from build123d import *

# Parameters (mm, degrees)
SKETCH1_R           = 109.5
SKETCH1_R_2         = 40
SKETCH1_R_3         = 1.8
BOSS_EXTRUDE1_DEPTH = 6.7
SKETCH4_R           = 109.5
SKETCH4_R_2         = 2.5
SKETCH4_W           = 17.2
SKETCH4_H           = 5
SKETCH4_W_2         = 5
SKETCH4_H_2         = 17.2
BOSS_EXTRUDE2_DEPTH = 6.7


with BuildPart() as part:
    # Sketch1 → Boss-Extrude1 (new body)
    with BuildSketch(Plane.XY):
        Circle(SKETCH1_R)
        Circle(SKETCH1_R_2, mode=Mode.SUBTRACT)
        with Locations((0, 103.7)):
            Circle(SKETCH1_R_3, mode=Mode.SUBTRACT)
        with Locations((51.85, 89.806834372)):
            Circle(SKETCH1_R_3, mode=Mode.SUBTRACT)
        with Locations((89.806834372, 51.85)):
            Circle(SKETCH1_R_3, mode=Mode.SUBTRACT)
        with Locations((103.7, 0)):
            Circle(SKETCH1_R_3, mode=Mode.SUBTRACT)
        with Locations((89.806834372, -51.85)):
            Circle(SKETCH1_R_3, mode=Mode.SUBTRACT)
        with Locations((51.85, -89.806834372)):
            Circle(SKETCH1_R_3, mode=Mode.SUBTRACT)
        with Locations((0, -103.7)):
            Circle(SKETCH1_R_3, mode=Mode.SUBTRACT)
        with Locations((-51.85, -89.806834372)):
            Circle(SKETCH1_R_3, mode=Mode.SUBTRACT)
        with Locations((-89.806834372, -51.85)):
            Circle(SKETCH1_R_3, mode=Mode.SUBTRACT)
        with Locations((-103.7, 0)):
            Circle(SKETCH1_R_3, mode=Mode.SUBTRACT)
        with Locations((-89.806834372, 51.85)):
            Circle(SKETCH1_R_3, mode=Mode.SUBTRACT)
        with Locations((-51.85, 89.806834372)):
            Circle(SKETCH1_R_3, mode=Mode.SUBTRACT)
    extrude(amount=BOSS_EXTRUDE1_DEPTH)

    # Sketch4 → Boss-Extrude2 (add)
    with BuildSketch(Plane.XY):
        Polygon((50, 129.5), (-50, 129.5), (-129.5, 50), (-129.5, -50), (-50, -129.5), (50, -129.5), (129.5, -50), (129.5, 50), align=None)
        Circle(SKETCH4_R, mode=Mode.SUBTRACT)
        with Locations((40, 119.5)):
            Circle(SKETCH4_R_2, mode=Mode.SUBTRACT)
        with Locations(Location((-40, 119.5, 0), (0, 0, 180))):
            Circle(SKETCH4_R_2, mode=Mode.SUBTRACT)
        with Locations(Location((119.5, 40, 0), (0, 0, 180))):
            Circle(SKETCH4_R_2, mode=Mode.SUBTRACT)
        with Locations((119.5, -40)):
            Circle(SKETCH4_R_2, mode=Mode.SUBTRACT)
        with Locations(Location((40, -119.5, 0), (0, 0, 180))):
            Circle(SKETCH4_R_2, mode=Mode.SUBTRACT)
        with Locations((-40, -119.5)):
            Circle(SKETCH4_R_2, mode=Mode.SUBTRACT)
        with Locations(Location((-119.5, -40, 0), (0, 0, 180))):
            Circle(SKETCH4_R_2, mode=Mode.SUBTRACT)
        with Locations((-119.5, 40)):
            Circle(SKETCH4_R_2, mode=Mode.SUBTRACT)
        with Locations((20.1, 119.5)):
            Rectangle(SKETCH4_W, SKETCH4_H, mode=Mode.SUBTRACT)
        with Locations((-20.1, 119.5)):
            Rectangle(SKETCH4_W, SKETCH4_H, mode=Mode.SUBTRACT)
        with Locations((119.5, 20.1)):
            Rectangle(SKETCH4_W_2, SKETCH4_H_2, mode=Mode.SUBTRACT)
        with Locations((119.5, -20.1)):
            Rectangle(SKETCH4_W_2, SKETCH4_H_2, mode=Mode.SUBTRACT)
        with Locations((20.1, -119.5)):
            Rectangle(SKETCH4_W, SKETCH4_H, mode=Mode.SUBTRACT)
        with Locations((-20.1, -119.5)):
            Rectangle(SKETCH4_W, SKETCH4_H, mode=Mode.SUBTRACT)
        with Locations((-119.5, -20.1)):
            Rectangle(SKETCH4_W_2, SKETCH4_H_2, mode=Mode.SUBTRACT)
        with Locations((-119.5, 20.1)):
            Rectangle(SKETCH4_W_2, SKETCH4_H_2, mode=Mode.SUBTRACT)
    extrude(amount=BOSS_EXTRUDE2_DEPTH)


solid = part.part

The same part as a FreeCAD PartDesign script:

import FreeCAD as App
import Part
import Sketcher


def add_polygon(sketch, points):
    """Adds a closed chain of lines whose ends are joined by coincident constraints."""
    first, n = sketch.GeometryCount, len(points)
    for a, b in zip(points, points[1:] + points[:1]):
        sketch.addGeometry(Part.LineSegment(App.Vector(*a, 0), App.Vector(*b, 0)), False)
    for i in range(n):
        sketch.addConstraint(Sketcher.Constraint("Coincident", first + i, 2, first + (i + 1) % n, 1))

doc = App.newDocument("Part")
body = doc.addObject("PartDesign::Body", "Body")

# Sketch on XY plane
sketch1 = body.newObject("Sketcher::SketchObject", "Sketch")
sketch1.AttachmentSupport = (doc.getObject("XY_Plane"), [""])
sketch1.MapMode = "FlatFace"
sketch1.addGeometry(Part.Circle(App.Vector(0, 0, 0), App.Vector(0, 0, 1), 109.5), False)
sketch1.addGeometry(Part.Circle(App.Vector(-51.9, -89.8, 0), App.Vector(0, 0, 1), 1.8), False)
sketch1.addGeometry(Part.Circle(App.Vector(-89.8, -51.9, 0), App.Vector(0, 0, 1), 1.8), False)
sketch1.addGeometry(Part.Circle(App.Vector(0, -103.7, 0), App.Vector(0, 0, 1), 1.8), False)
sketch1.addGeometry(Part.Circle(App.Vector(51.9, -89.8, 0), App.Vector(0, 0, 1), 1.8), False)
sketch1.addGeometry(Part.Circle(App.Vector(89.8, -51.9, 0), App.Vector(0, 0, 1), 1.8), False)
sketch1.addGeometry(Part.Circle(App.Vector(-103.7, 0, 0), App.Vector(0, 0, 1), 1.8), False)
sketch1.addGeometry(Part.Circle(App.Vector(-89.8, 51.9, 0), App.Vector(0, 0, 1), 1.8), False)
sketch1.addGeometry(Part.Circle(App.Vector(-51.9, 89.8, 0), App.Vector(0, 0, 1), 1.8), False)
sketch1.addGeometry(Part.Circle(App.Vector(0, 0, 0), App.Vector(0, 0, 1), 40), False)
sketch1.addGeometry(Part.Circle(App.Vector(103.7, 0, 0), App.Vector(0, 0, 1), 1.8), False)
sketch1.addGeometry(Part.Circle(App.Vector(89.8, 51.9, 0), App.Vector(0, 0, 1), 1.8), False)
sketch1.addGeometry(Part.Circle(App.Vector(0, 103.7, 0), App.Vector(0, 0, 1), 1.8), False)
sketch1.addGeometry(Part.Circle(App.Vector(51.9, 89.8, 0), App.Vector(0, 0, 1), 1.8), False)
sketch1.addConstraint(Sketcher.Constraint("Coincident", 0, 3, -1, 1))
sketch1.addConstraint(Sketcher.Constraint("Coincident", 9, 3, -1, 1))
sketch1.addConstraint(Sketcher.Constraint("Equal", 1, 2))
sketch1.addConstraint(Sketcher.Constraint("Equal", 2, 3))
sketch1.addConstraint(Sketcher.Constraint("Equal", 3, 4))
sketch1.addConstraint(Sketcher.Constraint("Equal", 4, 5))
sketch1.addConstraint(Sketcher.Constraint("Equal", 5, 6))
sketch1.addConstraint(Sketcher.Constraint("Equal", 6, 7))
sketch1.addConstraint(Sketcher.Constraint("Equal", 7, 8))
sketch1.addConstraint(Sketcher.Constraint("Equal", 8, 10))
sketch1.addConstraint(Sketcher.Constraint("Equal", 10, 11))
sketch1.addConstraint(Sketcher.Constraint("Equal", 11, 12))
sketch1.addConstraint(Sketcher.Constraint("Equal", 12, 13))
sketch1.addConstraint(Sketcher.Constraint("Symmetric", 5, 3, 7, 3, -1, 1))
sketch1.addConstraint(Sketcher.Constraint("Symmetric", 4, 3, 8, 3, -1, 1))
sketch1.addConstraint(Sketcher.Constraint("Symmetric", 6, 3, 10, 3, -1, 1))
sketch1.addConstraint(Sketcher.Constraint("Symmetric", 2, 3, 11, 3, -1, 1))
sketch1.addConstraint(Sketcher.Constraint("Symmetric", 3, 3, 12, 3, -1, 1))
sketch1.addConstraint(Sketcher.Constraint("Symmetric", 1, 3, 13, 3, -1, 1))
sketch1.addConstraint(Sketcher.Constraint("Symmetric", 1, 3, 4, 3, -2))
sketch1.addConstraint(Sketcher.Constraint("Symmetric", 2, 3, 5, 3, -2))
sketch1.addConstraint(Sketcher.Constraint("PointOnObject", 3, 3, -2))
sketch1.addConstraint(Sketcher.Constraint("PointOnObject", 6, 3, -1))
sketch1.addConstraint(Sketcher.Constraint("Diameter", 0, 219.0))
sketch1.addConstraint(Sketcher.Constraint("Diameter", 9, 80.0))
sketch1.addConstraint(Sketcher.Constraint("Diameter", 1, 3.6))
sketch1.addConstraint(Sketcher.Constraint("DistanceY", 3, 3, -1, 1, 103.7))
sketch1.addConstraint(Sketcher.Constraint("DistanceX", 6, 3, -1, 1, 103.7))
sketch1.addConstraint(Sketcher.Constraint("DistanceX", 1, 3, 4, 3, 103.7))
sketch1.addConstraint(Sketcher.Constraint("DistanceY", 2, 3, 7, 3, 103.7))
sketch1.addConstraint(Sketcher.Constraint("DistanceX", 2, 3, 5, 3, 179.613669))
sketch1.addConstraint(Sketcher.Constraint("DistanceY", 1, 3, 8, 3, 179.613669))
pad1 = body.newObject("PartDesign::Pad", "Pad")
pad1.Profile = sketch1
pad1.Length = 6.7

# Sketch on XY plane
sketch2 = body.newObject("Sketcher::SketchObject", "Sketch001")
sketch2.AttachmentSupport = (doc.getObject("XY_Plane"), [""])
sketch2.MapMode = "FlatFace"
add_polygon(sketch2, [(50, 129.5), (-50, 129.5), (-129.5, 50), (-129.5, -50), (-50, -129.5), (50, -129.5), (129.5, -50), (129.5, 50)])  # lines 0-7
sketch2.addGeometry(Part.Circle(App.Vector(-40, -119.5, 0), App.Vector(0, 0, 1), 2.5), False)  # 8
add_polygon(sketch2, [(-11.5, -122), (-28.7, -122), (-28.7, -117), (-11.5, -117)])  # lines 9-12
sketch2.addGeometry(Part.Circle(App.Vector(-119.5, -40, 0), App.Vector(0, 0, 1), 2.5), False)  # 13
add_polygon(sketch2, [(-117, -28.7), (-122, -28.7), (-122, -11.5), (-117, -11.5)])  # lines 14-17
add_polygon(sketch2, [(28.7, -122), (11.5, -122), (11.5, -117), (28.7, -117)])  # lines 18-21
sketch2.addGeometry(Part.Circle(App.Vector(40, -119.5, 0), App.Vector(0, 0, 1), 2.5), False)  # 22
sketch2.addGeometry(Part.Circle(App.Vector(119.5, -40, 0), App.Vector(0, 0, 1), 2.5), False)  # 23
add_polygon(sketch2, [(122, -28.7), (117, -28.7), (117, -11.5), (122, -11.5)])  # lines 24-27
add_polygon(sketch2, [(-117, 11.5), (-122, 11.5), (-122, 28.7), (-117, 28.7)])  # lines 28-31
sketch2.addGeometry(Part.Circle(App.Vector(-119.5, 40, 0), App.Vector(0, 0, 1), 2.5), False)  # 32
sketch2.addGeometry(Part.Circle(App.Vector(-40, 119.5, 0), App.Vector(0, 0, 1), 2.5), False)  # 33
add_polygon(sketch2, [(-11.5, 117), (-28.7, 117), (-28.7, 122), (-11.5, 122)])  # lines 34-37
sketch2.addGeometry(Part.Circle(App.Vector(0, 0, 0), App.Vector(0, 0, 1), 109.5), False)  # 38
add_polygon(sketch2, [(122, 11.5), (117, 11.5), (117, 28.7), (122, 28.7)])  # lines 39-42
sketch2.addGeometry(Part.Circle(App.Vector(119.5, 40, 0), App.Vector(0, 0, 1), 2.5), False)  # 43
add_polygon(sketch2, [(28.7, 117), (11.5, 117), (11.5, 122), (28.7, 122)])  # lines 44-47
sketch2.addGeometry(Part.Circle(App.Vector(40, 119.5, 0), App.Vector(0, 0, 1), 2.5), False)  # 48
sketch2.addConstraint(Sketcher.Constraint("Horizontal", 0))
sketch2.addConstraint(Sketcher.Constraint("Vertical", 2))
sketch2.addConstraint(Sketcher.Constraint("Horizontal", 4))
sketch2.addConstraint(Sketcher.Constraint("Vertical", 6))
sketch2.addConstraint(Sketcher.Constraint("Horizontal", 9))
sketch2.addConstraint(Sketcher.Constraint("Vertical", 10))
sketch2.addConstraint(Sketcher.Constraint("Horizontal", 11))
sketch2.addConstraint(Sketcher.Constraint("Vertical", 12))
sketch2.addConstraint(Sketcher.Constraint("Horizontal", 14))
sketch2.addConstraint(Sketcher.Constraint("Vertical", 15))
sketch2.addConstraint(Sketcher.Constraint("Horizontal", 16))
sketch2.addConstraint(Sketcher.Constraint("Vertical", 17))
sketch2.addConstraint(Sketcher.Constraint("Horizontal", 18))
sketch2.addConstraint(Sketcher.Constraint("Vertical", 19))
sketch2.addConstraint(Sketcher.Constraint("Horizontal", 20))
sketch2.addConstraint(Sketcher.Constraint("Vertical", 21))
sketch2.addConstraint(Sketcher.Constraint("Horizontal", 24))
sketch2.addConstraint(Sketcher.Constraint("Vertical", 25))
sketch2.addConstraint(Sketcher.Constraint("Horizontal", 26))
sketch2.addConstraint(Sketcher.Constraint("Vertical", 27))
sketch2.addConstraint(Sketcher.Constraint("Horizontal", 28))
sketch2.addConstraint(Sketcher.Constraint("Vertical", 29))
sketch2.addConstraint(Sketcher.Constraint("Horizontal", 30))
sketch2.addConstraint(Sketcher.Constraint("Vertical", 31))
sketch2.addConstraint(Sketcher.Constraint("Horizontal", 34))
sketch2.addConstraint(Sketcher.Constraint("Vertical", 35))
sketch2.addConstraint(Sketcher.Constraint("Horizontal", 36))
sketch2.addConstraint(Sketcher.Constraint("Vertical", 37))
sketch2.addConstraint(Sketcher.Constraint("Horizontal", 39))
sketch2.addConstraint(Sketcher.Constraint("Vertical", 40))
sketch2.addConstraint(Sketcher.Constraint("Horizontal", 41))
sketch2.addConstraint(Sketcher.Constraint("Vertical", 42))
sketch2.addConstraint(Sketcher.Constraint("Horizontal", 44))
sketch2.addConstraint(Sketcher.Constraint("Vertical", 45))
sketch2.addConstraint(Sketcher.Constraint("Horizontal", 46))
sketch2.addConstraint(Sketcher.Constraint("Vertical", 47))
sketch2.addConstraint(Sketcher.Constraint("Coincident", 38, 3, -1, 1))
sketch2.addConstraint(Sketcher.Constraint("Equal", 8, 13))
sketch2.addConstraint(Sketcher.Constraint("Equal", 13, 22))
sketch2.addConstraint(Sketcher.Constraint("Equal", 22, 23))
sketch2.addConstraint(Sketcher.Constraint("Equal", 23, 32))
sketch2.addConstraint(Sketcher.Constraint("Equal", 32, 33))
sketch2.addConstraint(Sketcher.Constraint("Equal", 33, 43))
sketch2.addConstraint(Sketcher.Constraint("Equal", 43, 48))
sketch2.addConstraint(Sketcher.Constraint("Symmetric", 23, 3, 32, 3, -1, 1))
sketch2.addConstraint(Sketcher.Constraint("Symmetric", 22, 3, 33, 3, -1, 1))
sketch2.addConstraint(Sketcher.Constraint("Symmetric", 13, 3, 43, 3, -1, 1))
sketch2.addConstraint(Sketcher.Constraint("Symmetric", 8, 3, 48, 3, -1, 1))
sketch2.addConstraint(Sketcher.Constraint("Symmetric", 0, 2, 4, 2, -1, 1))
sketch2.addConstraint(Sketcher.Constraint("Symmetric", 1, 2, 5, 2, -1, 1))
sketch2.addConstraint(Sketcher.Constraint("Symmetric", 26, 2, 28, 2, -1, 1))
sketch2.addConstraint(Sketcher.Constraint("Symmetric", 24, 2, 30, 2, -1, 1))
sketch2.addConstraint(Sketcher.Constraint("Symmetric", 20, 2, 34, 2, -1, 1))
sketch2.addConstraint(Sketcher.Constraint("Symmetric", 18, 2, 36, 2, -1, 1))
sketch2.addConstraint(Sketcher.Constraint("Symmetric", 16, 2, 39, 2, -1, 1))
sketch2.addConstraint(Sketcher.Constraint("Symmetric", 14, 2, 41, 2, -1, 1))
sketch2.addConstraint(Sketcher.Constraint("Symmetric", 11, 2, 44, 2, -1, 1))
sketch2.addConstraint(Sketcher.Constraint("Symmetric", 9, 2, 46, 2, -1, 1))
sketch2.addConstraint(Sketcher.Constraint("Symmetric", 8, 3, 22, 3, -2))
sketch2.addConstraint(Sketcher.Constraint("Symmetric", 13, 3, 23, 3, -2))
sketch2.addConstraint(Sketcher.Constraint("Symmetric", 12, 2, 18, 2, -2))
sketch2.addConstraint(Sketcher.Constraint("Symmetric", 10, 2, 20, 2, -2))
sketch2.addConstraint(Sketcher.Constraint("Symmetric", 17, 2, 24, 2, -2))
sketch2.addConstraint(Sketcher.Constraint("Symmetric", 15, 2, 26, 2, -2))
sketch2.addConstraint(Sketcher.Constraint("Perpendicular", 1, 3))
sketch2.addConstraint(Sketcher.Constraint("Perpendicular", 5, 7))
sketch2.addConstraint(Sketcher.Constraint("Horizontal", 2, 2, 5, 2))
sketch2.addConstraint(Sketcher.Constraint("Horizontal", 1, 2, 6, 2))
sketch2.addConstraint(Sketcher.Constraint("Vertical", 0, 2, 3, 2))
sketch2.addConstraint(Sketcher.Constraint("Equal", 4, 2))
sketch2.addConstraint(Sketcher.Constraint("Equal", 41, 10))
sketch2.addConstraint(Sketcher.Constraint("Equal", 46, 15))
sketch2.addConstraint(Sketcher.Constraint("Diameter", 8, 5.0))
sketch2.addConstraint(Sketcher.Constraint("Diameter", 38, 219.0))
sketch2.addConstraint(Sketcher.Constraint("DistanceX", 0, 2, 0, 1, 100.0))
sketch2.addConstraint(Sketcher.Constraint("DistanceX", 14, 2, 14, 1, 5.0))
sketch2.addConstraint(Sketcher.Constraint("DistanceX", 9, 2, 9, 1, 17.2))
sketch2.addConstraint(Sketcher.Constraint("DistanceX", 8, 3, -1, 1, 40.0))
sketch2.addConstraint(Sketcher.Constraint("DistanceY", 13, 3, -1, 1, 40.0))
sketch2.addConstraint(Sketcher.Constraint("DistanceY", 9, 2, -1, 1, 122.0))
sketch2.addConstraint(Sketcher.Constraint("DistanceX", 14, 2, -1, 1, 122.0))
sketch2.addConstraint(Sketcher.Constraint("DistanceX", 13, 3, 23, 3, 239.0))
sketch2.addConstraint(Sketcher.Constraint("DistanceY", 8, 3, 33, 3, 239.0))
sketch2.addConstraint(Sketcher.Constraint("DistanceY", 33, 3, 0, 2, 10.0))
sketch2.addConstraint(Sketcher.Constraint("DistanceX", 12, 2, 18, 2, 23.0))
sketch2.addConstraint(Sketcher.Constraint("DistanceY", 15, 2, 28, 2, 23.0))
pad2 = body.newObject("PartDesign::Pad", "Pad001")
pad2.Profile = sketch2
pad2.Length = 6.7

doc.recompute()
